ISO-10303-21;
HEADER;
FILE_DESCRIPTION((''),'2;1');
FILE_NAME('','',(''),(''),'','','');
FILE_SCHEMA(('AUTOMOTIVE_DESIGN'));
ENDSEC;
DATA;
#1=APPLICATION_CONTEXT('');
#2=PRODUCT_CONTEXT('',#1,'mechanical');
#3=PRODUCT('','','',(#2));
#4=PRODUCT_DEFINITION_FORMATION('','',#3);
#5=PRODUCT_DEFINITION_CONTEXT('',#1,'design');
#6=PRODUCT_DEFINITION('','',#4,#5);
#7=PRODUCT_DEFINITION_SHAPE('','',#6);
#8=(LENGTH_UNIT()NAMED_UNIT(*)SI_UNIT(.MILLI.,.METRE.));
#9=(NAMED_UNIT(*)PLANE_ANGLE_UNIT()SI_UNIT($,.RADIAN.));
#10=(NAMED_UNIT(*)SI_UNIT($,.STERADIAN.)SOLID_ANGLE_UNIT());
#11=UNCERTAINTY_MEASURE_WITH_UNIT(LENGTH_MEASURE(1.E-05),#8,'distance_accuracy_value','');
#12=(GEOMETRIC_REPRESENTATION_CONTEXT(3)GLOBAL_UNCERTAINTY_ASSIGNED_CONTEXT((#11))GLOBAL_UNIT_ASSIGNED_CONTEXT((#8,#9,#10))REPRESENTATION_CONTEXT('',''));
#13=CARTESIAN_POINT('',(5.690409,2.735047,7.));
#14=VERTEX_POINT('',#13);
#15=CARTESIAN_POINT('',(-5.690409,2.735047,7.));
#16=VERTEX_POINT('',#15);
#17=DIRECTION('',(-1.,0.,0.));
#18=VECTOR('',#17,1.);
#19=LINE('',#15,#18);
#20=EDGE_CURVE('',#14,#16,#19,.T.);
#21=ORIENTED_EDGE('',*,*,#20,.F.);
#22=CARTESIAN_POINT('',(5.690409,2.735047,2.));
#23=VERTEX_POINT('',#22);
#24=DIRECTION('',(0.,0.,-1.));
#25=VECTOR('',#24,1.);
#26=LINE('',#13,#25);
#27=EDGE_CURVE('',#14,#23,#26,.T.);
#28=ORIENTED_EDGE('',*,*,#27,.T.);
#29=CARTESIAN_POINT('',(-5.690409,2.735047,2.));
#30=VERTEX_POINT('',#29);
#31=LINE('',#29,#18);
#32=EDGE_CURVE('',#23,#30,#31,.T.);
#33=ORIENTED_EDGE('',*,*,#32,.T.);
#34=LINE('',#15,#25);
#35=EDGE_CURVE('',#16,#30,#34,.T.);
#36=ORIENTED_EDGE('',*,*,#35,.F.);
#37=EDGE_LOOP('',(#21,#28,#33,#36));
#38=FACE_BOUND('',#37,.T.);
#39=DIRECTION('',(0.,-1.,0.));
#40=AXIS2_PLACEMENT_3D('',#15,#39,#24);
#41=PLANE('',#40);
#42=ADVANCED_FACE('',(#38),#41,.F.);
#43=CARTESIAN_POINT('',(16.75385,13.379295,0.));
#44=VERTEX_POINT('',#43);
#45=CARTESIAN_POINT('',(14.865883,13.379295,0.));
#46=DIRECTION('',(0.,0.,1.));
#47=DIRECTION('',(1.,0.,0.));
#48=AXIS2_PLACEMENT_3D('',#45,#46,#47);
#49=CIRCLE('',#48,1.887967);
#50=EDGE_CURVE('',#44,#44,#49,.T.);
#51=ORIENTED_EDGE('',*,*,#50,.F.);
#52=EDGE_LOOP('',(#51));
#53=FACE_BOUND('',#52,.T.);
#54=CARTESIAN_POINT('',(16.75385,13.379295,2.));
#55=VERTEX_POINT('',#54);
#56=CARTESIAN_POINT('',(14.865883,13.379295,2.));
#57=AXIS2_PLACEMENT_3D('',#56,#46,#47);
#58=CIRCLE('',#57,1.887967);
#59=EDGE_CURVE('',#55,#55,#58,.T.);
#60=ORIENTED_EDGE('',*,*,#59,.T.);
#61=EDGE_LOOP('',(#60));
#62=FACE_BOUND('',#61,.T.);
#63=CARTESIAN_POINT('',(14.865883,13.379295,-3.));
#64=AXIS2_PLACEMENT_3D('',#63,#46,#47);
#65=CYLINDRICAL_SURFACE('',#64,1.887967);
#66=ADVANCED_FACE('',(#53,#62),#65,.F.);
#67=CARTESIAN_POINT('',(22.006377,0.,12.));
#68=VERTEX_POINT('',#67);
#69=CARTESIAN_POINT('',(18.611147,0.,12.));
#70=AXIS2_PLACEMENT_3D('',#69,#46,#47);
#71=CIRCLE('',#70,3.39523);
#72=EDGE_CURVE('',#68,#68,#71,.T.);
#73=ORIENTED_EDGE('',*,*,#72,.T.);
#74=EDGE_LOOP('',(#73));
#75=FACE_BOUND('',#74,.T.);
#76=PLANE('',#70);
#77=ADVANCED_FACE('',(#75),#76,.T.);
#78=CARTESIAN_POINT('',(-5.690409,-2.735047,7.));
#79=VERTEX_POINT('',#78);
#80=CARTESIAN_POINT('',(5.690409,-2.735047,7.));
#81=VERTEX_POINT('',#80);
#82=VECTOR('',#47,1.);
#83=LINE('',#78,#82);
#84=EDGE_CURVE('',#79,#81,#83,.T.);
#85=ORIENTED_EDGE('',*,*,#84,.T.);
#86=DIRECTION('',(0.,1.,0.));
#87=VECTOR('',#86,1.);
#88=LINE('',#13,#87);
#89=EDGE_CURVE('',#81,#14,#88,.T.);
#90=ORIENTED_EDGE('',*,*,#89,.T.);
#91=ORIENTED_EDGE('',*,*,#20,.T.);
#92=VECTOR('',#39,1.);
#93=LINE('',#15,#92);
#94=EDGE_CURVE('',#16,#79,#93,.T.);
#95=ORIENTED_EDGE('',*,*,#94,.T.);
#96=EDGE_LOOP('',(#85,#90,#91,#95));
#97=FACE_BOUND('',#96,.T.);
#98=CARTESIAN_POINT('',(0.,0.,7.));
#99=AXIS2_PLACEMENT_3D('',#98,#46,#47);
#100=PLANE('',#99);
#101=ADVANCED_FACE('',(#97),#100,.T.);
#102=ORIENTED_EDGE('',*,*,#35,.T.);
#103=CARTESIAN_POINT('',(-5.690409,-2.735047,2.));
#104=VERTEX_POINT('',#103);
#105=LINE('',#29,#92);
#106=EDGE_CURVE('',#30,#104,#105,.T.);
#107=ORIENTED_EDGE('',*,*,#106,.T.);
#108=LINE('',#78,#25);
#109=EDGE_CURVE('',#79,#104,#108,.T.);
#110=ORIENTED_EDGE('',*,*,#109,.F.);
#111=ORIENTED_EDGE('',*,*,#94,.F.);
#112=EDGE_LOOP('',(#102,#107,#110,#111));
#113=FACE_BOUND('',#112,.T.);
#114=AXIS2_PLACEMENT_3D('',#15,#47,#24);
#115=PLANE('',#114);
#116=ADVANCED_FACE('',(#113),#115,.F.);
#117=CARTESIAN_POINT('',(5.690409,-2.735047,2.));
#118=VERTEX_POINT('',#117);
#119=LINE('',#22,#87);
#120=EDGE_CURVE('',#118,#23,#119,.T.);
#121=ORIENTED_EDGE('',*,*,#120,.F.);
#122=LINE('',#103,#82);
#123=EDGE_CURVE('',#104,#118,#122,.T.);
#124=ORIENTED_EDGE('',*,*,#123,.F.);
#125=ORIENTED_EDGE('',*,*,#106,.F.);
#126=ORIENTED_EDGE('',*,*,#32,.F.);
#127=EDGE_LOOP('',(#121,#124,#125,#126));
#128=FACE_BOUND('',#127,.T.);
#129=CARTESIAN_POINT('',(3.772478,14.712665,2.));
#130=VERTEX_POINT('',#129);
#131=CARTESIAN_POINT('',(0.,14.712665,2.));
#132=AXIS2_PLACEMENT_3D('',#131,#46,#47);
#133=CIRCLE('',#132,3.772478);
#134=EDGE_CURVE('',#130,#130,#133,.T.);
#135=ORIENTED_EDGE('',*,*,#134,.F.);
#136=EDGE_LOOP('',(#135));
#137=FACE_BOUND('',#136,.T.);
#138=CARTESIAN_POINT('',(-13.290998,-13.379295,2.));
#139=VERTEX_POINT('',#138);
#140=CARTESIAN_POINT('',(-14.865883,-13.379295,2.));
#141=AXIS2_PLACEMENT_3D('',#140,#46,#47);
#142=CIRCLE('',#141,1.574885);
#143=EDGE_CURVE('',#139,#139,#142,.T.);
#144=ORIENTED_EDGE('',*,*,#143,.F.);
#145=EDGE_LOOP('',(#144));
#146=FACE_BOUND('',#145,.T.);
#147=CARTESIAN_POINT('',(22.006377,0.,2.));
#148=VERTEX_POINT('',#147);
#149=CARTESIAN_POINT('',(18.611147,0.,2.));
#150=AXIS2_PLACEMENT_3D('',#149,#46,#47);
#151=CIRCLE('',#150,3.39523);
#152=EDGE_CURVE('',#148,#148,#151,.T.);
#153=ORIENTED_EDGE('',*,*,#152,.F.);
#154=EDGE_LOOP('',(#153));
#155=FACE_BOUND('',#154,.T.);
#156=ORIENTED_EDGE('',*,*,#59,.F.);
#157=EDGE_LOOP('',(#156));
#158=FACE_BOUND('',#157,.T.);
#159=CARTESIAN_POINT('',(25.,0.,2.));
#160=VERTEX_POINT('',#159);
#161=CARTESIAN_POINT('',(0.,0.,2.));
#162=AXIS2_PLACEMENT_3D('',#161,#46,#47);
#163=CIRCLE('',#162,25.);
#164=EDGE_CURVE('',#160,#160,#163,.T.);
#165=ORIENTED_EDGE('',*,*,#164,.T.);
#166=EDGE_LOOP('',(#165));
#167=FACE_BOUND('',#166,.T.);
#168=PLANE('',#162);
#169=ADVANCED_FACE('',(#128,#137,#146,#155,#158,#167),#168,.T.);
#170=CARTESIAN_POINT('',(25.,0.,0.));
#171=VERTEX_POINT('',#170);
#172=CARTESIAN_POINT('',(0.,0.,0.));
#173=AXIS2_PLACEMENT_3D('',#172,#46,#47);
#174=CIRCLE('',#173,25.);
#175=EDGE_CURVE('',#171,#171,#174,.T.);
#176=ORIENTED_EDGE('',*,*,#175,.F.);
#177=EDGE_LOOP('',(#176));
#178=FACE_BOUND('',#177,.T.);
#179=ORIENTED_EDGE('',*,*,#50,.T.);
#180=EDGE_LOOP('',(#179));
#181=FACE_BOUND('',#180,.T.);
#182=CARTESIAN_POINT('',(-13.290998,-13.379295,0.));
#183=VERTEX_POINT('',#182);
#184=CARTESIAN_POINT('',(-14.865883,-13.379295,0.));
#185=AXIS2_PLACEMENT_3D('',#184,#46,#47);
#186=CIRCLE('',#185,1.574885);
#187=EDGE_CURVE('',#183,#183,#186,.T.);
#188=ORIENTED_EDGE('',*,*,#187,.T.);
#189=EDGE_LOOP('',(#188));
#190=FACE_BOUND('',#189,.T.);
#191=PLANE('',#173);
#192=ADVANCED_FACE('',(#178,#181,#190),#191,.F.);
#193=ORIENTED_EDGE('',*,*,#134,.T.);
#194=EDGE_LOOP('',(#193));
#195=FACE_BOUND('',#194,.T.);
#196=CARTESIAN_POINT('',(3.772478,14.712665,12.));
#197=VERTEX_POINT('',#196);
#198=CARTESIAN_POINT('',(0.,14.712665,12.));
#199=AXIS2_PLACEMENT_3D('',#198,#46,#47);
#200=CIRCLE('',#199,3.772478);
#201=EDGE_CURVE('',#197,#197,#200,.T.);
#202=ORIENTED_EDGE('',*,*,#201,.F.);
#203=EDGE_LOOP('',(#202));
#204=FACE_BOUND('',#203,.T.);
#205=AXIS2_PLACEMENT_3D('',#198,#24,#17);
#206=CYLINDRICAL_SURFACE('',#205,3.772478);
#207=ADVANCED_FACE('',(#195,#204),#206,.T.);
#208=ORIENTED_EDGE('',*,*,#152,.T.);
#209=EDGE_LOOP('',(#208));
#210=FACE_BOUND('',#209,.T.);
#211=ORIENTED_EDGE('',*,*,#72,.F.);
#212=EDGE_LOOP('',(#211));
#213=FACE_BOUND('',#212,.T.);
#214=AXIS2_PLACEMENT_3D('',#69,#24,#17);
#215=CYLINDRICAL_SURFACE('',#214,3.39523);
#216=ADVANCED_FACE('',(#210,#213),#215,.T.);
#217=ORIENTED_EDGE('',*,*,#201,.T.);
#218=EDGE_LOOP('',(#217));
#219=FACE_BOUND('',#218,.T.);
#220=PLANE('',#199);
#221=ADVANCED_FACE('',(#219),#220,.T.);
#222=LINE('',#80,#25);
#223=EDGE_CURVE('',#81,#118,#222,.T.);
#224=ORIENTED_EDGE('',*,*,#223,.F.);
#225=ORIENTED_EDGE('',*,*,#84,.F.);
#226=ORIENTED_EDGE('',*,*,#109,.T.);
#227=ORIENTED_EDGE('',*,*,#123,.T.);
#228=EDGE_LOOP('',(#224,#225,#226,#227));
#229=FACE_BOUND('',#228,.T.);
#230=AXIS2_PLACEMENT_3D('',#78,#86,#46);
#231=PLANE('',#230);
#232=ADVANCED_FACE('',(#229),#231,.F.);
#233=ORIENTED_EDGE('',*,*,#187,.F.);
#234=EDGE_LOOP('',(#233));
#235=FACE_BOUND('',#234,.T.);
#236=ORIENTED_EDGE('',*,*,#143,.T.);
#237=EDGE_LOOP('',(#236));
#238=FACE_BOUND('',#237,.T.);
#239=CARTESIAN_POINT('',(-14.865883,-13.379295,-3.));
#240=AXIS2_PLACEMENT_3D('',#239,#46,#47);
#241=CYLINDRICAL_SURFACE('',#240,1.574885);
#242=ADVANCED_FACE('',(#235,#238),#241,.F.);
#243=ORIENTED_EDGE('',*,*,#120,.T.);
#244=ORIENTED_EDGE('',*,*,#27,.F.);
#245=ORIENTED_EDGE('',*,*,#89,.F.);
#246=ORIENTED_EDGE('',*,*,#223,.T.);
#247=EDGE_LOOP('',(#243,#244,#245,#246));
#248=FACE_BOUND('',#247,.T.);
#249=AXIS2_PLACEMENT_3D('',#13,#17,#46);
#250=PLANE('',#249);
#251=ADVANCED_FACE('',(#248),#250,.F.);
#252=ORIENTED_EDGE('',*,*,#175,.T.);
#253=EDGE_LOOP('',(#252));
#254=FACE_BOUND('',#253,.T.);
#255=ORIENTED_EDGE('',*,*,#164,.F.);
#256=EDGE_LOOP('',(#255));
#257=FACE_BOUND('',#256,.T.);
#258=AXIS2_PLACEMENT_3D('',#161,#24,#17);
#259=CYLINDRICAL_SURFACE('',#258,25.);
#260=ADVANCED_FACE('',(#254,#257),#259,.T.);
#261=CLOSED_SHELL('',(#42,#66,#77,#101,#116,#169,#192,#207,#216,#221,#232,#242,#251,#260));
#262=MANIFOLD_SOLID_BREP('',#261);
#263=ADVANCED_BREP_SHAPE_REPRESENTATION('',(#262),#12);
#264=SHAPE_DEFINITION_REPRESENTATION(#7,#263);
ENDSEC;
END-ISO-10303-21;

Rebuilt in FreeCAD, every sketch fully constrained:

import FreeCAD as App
import Part
import Sketcher

V = App.Vector

doc = App.newDocument("Part")
body = doc.addObject("PartDesign::Body", "Body")

sketch1 = doc.addObject("Sketcher::SketchObject", "Sketch")
body.addObject(sketch1)
sketch1.AttachmentSupport = (doc.XY_Plane, [""])
sketch1.MapMode = "FlatFace"
sketch1.addGeometry(Part.Circle(V(0, 0, 0), V(0, 0, 1), 25), False)
sketch1.addConstraint([
    Sketcher.Constraint("Coincident", 0, 3, -1, 1),
    Sketcher.Constraint("Diameter", 0, 50.0),
])
pad1 = doc.addObject("PartDesign::Pad", "Pad")
body.addObject(pad1)
pad1.Profile = sketch1
pad1.Length = 2

sketch2 = doc.addObject("Sketcher::SketchObject", "Sketch001")
body.addObject(sketch2)
sketch2.AttachmentSupport = (doc.XY_Plane, [""])
sketch2.MapMode = "FlatFace"
sketch2.AttachmentOffset = App.Placement(V(0, 0, 2), App.Rotation())
sketch2.addGeometry([
    Part.Circle(V(0, 14.7, 0), V(0, 0, 1), 3.8),
    Part.Circle(V(18.6, 0, 0), V(0, 0, 1), 3.4),
], False)
sketch2.addConstraint([
    Sketcher.Constraint("PointOnObject", 0, 3, -2),
    Sketcher.Constraint("PointOnObject", 1, 3, -1),
    Sketcher.Constraint("Diameter", 1, 6.790461),
    Sketcher.Constraint("Diameter", 0, 7.544956),
    Sketcher.Constraint("DistanceY", -1, 1, 0, 3, 14.712665),
    Sketcher.Constraint("DistanceX", -1, 1, 1, 3, 18.611147),
])
pad2 = doc.addObject("PartDesign::Pad", "Pad001")
body.addObject(pad2)
pad2.Profile = sketch2
pad2.Length = 10

sketch3 = doc.addObject("Sketcher::SketchObject", "Sketch002")
body.addObject(sketch3)
sketch3.AttachmentSupport = (doc.XY_Plane, [""])
sketch3.MapMode = "FlatFace"
sketch3.AttachmentOffset = App.Placement(V(0, 0, 2), App.Rotation())
sketch3.addGeometry([
    Part.LineSegment(V(-6, 3, 0), V(-6, -3, 0)),
    Part.LineSegment(V(-6, -3, 0), V(6, -3, 0)),
    Part.LineSegment(V(6, -3, 0), V(6, 3, 0)),
    Part.LineSegment(V(6, 3, 0), V(-6, 3, 0)),
], False)
sketch3.addConstraint([
    Sketcher.Constraint("Coincident", 0, 2, 1, 1),
    Sketcher.Constraint("Coincident", 1, 2, 2, 1),
    Sketcher.Constraint("Coincident", 2, 2, 3, 1),
    Sketcher.Constraint("Coincident", 3, 2, 0, 1),
    Sketcher.Constraint("Vertical", 0),
    Sketcher.Constraint("Horizontal", 1),
    Sketcher.Constraint("Vertical", 2),
    Sketcher.Constraint("Horizontal", 3),
    Sketcher.Constraint("Symmetric", 0, 2, 2, 2, -1, 1),
    Sketcher.Constraint("DistanceX", 1, 1, 1, 2, 11.380817),
    Sketcher.Constraint("DistanceY", 0, 2, 0, 1, 5.470093),
])
pad3 = doc.addObject("PartDesign::Pad", "Pad002")
body.addObject(pad3)
pad3.Profile = sketch3
pad3.Length = 5

sketch4 = doc.addObject("Sketcher::SketchObject", "Sketch003")
body.addObject(sketch4)
sketch4.AttachmentSupport = (doc.XY_Plane, [""])
sketch4.MapMode = "FlatFace"
sketch4.AttachmentOffset = App.Placement(V(0, 0, 2), App.Rotation())
sketch4.addGeometry([
    Part.Circle(V(-14.9, -13.4, 0), V(0, 0, 1), 1.6),
    Part.Circle(V(14.9, 13.4, 0), V(0, 0, 1), 1.9),
], False)
sketch4.addConstraint([
    Sketcher.Constraint("Symmetric", 0, 3, 1, 3, -1, 1),
    Sketcher.Constraint("Diameter", 0, 3.14977),
    Sketcher.Constraint("Diameter", 1, 3.775934),
    Sketcher.Constraint("DistanceY", 0, 3, 1, 3, 26.758589),
    Sketcher.Constraint("DistanceX", 0, 3, -1, 1, 14.865883),
])
pocket1 = doc.addObject("PartDesign::Pocket", "Pocket")
body.addObject(pocket1)
pocket1.Profile = sketch4
pocket1.Length = 5

doc.recompute()
